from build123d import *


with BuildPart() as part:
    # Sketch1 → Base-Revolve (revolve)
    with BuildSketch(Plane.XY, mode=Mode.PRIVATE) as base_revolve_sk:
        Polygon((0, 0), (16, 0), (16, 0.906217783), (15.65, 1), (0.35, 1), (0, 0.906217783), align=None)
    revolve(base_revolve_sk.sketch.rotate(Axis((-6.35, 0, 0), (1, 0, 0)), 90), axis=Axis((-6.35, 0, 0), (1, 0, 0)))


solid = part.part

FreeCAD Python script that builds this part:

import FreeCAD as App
import Part
import Sketcher
Q = App.Units.Quantity

doc = App.newDocument("Part")
body = doc.addObject("PartDesign::Body", "Body")

sketch1 = doc.addObject("Sketcher::SketchObject", "Sketch")
body.addObject(sketch1)
sketch1.AttachmentSupport = (doc.XY_Plane, [""])
sketch1.MapMode = "FlatFace"
sketch1.addGeometry([
    Part.LineSegment(App.Vector(0, 0, 0), App.Vector(16, 0, 0)),
    Part.LineSegment(App.Vector(16, 0, 0), App.Vector(16, 0.91, 0)),
    Part.LineSegment(App.Vector(16, 0.91, 0), App.Vector(15.65, 1, 0)),
    Part.LineSegment(App.Vector(15.65, 1, 0), App.Vector(0.35, 1, 0)),
    Part.LineSegment(App.Vector(0.35, 1, 0), App.Vector(0, 0.91, 0)),
    Part.LineSegment(App.Vector(0, 0.91, 0), App.Vector(0, 0, 0)),
], False)
sketch1.addConstraint([
    Sketcher.Constraint("Coincident", 0, 2, 1, 1),
    Sketcher.Constraint("Coincident", 1, 2, 2, 1),
    Sketcher.Constraint("Coincident", 2, 2, 3, 1),
    Sketcher.Constraint("Coincident", 3, 2, 4, 1),
    Sketcher.Constraint("Coincident", 4, 2, 5, 1),
    Sketcher.Constraint("Coincident", 5, 2, 0, 1),
    Sketcher.Constraint("Horizontal", 0),
    Sketcher.Constraint("Vertical", 1),
    Sketcher.Constraint("Horizontal", 3),
    Sketcher.Constraint("Vertical", 5),
    Sketcher.Constraint("Coincident", 5, 2, -1, 1),
    Sketcher.Constraint("Horizontal", 1, 2, 4, 2),
    Sketcher.Constraint("Equal", 2, 4),
    Sketcher.Constraint("DistanceX", 0, 1, 0, 2, Q("16 mm")),
    Sketcher.Constraint("Angle", 2, Q("165 deg")),
    Sketcher.Constraint("DistanceX", 3, 2, 3, 1, Q("15.3 mm")),
    Sketcher.Constraint("DistanceY", -1, 1, 2, 2, Q("1 mm")),
])
revolution = doc.addObject("PartDesign::Revolution", "Revolution")
body.addObject(revolution)
revolution.Profile = sketch1
revolution.ReferenceAxis = (sketch1, ["H_Axis"])
revolution.Angle = 360

doc.recompute()
